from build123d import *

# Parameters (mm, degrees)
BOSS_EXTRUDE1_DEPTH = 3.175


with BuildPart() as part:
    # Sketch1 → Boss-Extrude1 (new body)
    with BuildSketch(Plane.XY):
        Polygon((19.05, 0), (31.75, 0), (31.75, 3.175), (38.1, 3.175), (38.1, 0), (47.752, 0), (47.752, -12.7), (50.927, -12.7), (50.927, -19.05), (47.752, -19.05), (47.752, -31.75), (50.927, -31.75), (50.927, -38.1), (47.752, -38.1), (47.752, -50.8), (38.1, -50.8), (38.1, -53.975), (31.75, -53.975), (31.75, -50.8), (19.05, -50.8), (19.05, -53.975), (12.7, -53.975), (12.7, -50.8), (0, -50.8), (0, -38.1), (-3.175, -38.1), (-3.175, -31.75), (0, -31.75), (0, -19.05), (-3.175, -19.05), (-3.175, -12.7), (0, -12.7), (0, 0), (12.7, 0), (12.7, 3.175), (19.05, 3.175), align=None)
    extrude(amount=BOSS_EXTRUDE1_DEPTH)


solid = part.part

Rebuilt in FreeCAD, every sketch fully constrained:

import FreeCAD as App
import Part
import Sketcher
Q = App.Units.Quantity

doc = App.newDocument("Part")
body = doc.addObject("PartDesign::Body", "Body")

# Sketch on XY plane
sketch1 = doc.addObject("Sketcher::SketchObject", "Sketch")
body.addObject(sketch1)
sketch1.AttachmentSupport = (doc.XY_Plane, [""])
sketch1.MapMode = "FlatFace"
sketch1.addGeometry(Part.LineSegment(App.Vector(31.8, 0, 0), App.Vector(19.1, 0, 0)), False)
sketch1.addGeometry(Part.LineSegment(App.Vector(19.1, 0, 0), App.Vector(19.1, 3.2, 0)), False)
sketch1.addGeometry(Part.LineSegment(App.Vector(19.1, 3.2, 0), App.Vector(12.7, 3.2, 0)), False)
sketch1.addGeometry(Part.LineSegment(App.Vector(12.7, 3.2, 0), App.Vector(12.7, 0, 0)), False)
sketch1.addGeometry(Part.LineSegment(App.Vector(12.7, 0, 0), App.Vector(0, 0, 0)), False)
sketch1.addGeometry(Part.LineSegment(App.Vector(0, 0, 0), App.Vector(0, -12.7, 0)), False)
sketch1.addGeometry(Part.LineSegment(App.Vector(0, -12.7, 0), App.Vector(-3.2, -12.7, 0)), False)
sketch1.addGeometry(Part.LineSegment(App.Vector(-3.2, -12.7, 0), App.Vector(-3.2, -19.1, 0)), False)
sketch1.addGeometry(Part.LineSegment(App.Vector(-3.2, -19.1, 0), App.Vector(0, -19.1, 0)), False)
sketch1.addGeometry(Part.LineSegment(App.Vector(0, -19.1, 0), App.Vector(0, -31.8, 0)), False)
sketch1.addGeometry(Part.LineSegment(App.Vector(0, -31.8, 0), App.Vector(-3.2, -31.8, 0)), False)
sketch1.addGeometry(Part.LineSegment(App.Vector(-3.2, -31.8, 0), App.Vector(-3.2, -38.1, 0)), False)
sketch1.addGeometry(Part.LineSegment(App.Vector(-3.2, -38.1, 0), App.Vector(0, -38.1, 0)), False)
sketch1.addGeometry(Part.LineSegment(App.Vector(0, -38.1, 0), App.Vector(0, -50.8, 0)), False)
sketch1.addGeometry(Part.LineSegment(App.Vector(0, -50.8, 0), App.Vector(12.7, -50.8, 0)), False)
sketch1.addGeometry(Part.LineSegment(App.Vector(12.7, -50.8, 0), App.Vector(12.7, -54, 0)), False)
sketch1.addGeometry(Part.LineSegment(App.Vector(12.7, -54, 0), App.Vector(19.1, -54, 0)), False)
sketch1.addGeometry(Part.LineSegment(App.Vector(19.1, -54, 0), App.Vector(19.1, -50.8, 0)), False)
sketch1.addGeometry(Part.LineSegment(App.Vector(19.1, -50.8, 0), App.Vector(31.8, -50.8, 0)), False)
sketch1.addGeometry(Part.LineSegment(App.Vector(31.8, -50.8, 0), App.Vector(31.8, -54, 0)), False)
sketch1.addGeometry(Part.LineSegment(App.Vector(31.8, -54, 0), App.Vector(38.1, -54, 0)), False)
sketch1.addGeometry(Part.LineSegment(App.Vector(38.1, -54, 0), App.Vector(38.1, -50.8, 0)), False)
sketch1.addGeometry(Part.LineSegment(App.Vector(38.1, -50.8, 0), App.Vector(47.8, -50.8, 0)), False)
sketch1.addGeometry(Part.LineSegment(App.Vector(47.8, -50.8, 0), App.Vector(47.8, -38.1, 0)), False)
sketch1.addGeometry(Part.LineSegment(App.Vector(47.8, -38.1, 0), App.Vector(50.9, -38.1, 0)), False)
sketch1.addGeometry(Part.LineSegment(App.Vector(50.9, -38.1, 0), App.Vector(50.9, -31.8, 0)), False)
sketch1.addGeometry(Part.LineSegment(App.Vector(50.9, -31.8, 0), App.Vector(47.8, -31.8, 0)), False)
sketch1.addGeometry(Part.LineSegment(App.Vector(47.8, -31.8, 0), App.Vector(47.8, -19.1, 0)), False)
sketch1.addGeometry(Part.LineSegment(App.Vector(47.8, -19.1, 0), App.Vector(50.9, -19.1, 0)), False)
sketch1.addGeometry(Part.LineSegment(App.Vector(50.9, -19.1, 0), App.Vector(50.9, -12.7, 0)), False)
sketch1.addGeometry(Part.LineSegment(App.Vector(50.9, -12.7, 0), App.Vector(47.8, -12.7, 0)), False)
sketch1.addGeometry(Part.LineSegment(App.Vector(47.8, -12.7, 0), App.Vector(47.8, 0, 0)), False)
sketch1.addGeometry(Part.LineSegment(App.Vector(47.8, 0, 0), App.Vector(38.1, 0, 0)), False)
sketch1.addGeometry(Part.LineSegment(App.Vector(38.1, 0, 0), App.Vector(38.1, 3.2, 0)), False)
sketch1.addGeometry(Part.LineSegment(App.Vector(38.1, 3.2, 0), App.Vector(31.8, 3.2, 0)), False)
sketch1.addGeometry(Part.LineSegment(App.Vector(31.8, 3.2, 0), App.Vector(31.8, 0, 0)), False)
sketch1.addConstraint(Sketcher.Constraint("Coincident", 0, 2, 1, 1))
sketch1.addConstraint(Sketcher.Constraint("Coincident", 1, 2, 2, 1))
sketch1.addConstraint(Sketcher.Constraint("Coincident", 2, 2, 3, 1))
sketch1.addConstraint(Sketcher.Constraint("Coincident", 3, 2, 4, 1))
sketch1.addConstraint(Sketcher.Constraint("Coincident", 4, 2, 5, 1))
sketch1.addConstraint(Sketcher.Constraint("Coincident", 5, 2, 6, 1))
sketch1.addConstraint(Sketcher.Constraint("Coincident", 6, 2, 7, 1))
sketch1.addConstraint(Sketcher.Constraint("Coincident", 7, 2, 8, 1))
sketch1.addConstraint(Sketcher.Constraint("Coincident", 8, 2, 9, 1))
sketch1.addConstraint(Sketcher.Constraint("Coincident", 9, 2, 10, 1))
sketch1.addConstraint(Sketcher.Constraint("Coincident", 10, 2, 11, 1))
sketch1.addConstraint(Sketcher.Constraint("Coincident", 11, 2, 12, 1))
sketch1.addConstraint(Sketcher.Constraint("Coincident", 12, 2, 13, 1))
sketch1.addConstraint(Sketcher.Constraint("Coincident", 13, 2, 14, 1))
sketch1.addConstraint(Sketcher.Constraint("Coincident", 14, 2, 15, 1))
sketch1.addConstraint(Sketcher.Constraint("Coincident", 15, 2, 16, 1))
sketch1.addConstraint(Sketcher.Constraint("Coincident", 16, 2, 17, 1))
sketch1.addConstraint(Sketcher.Constraint("Coincident", 17, 2, 18, 1))
sketch1.addConstraint(Sketcher.Constraint("Coincident", 18, 2, 19, 1))
sketch1.addConstraint(Sketcher.Constraint("Coincident", 19, 2, 20, 1))
sketch1.addConstraint(Sketcher.Constraint("Coincident", 20, 2, 21, 1))
sketch1.addConstraint(Sketcher.Constraint("Coincident", 21, 2, 22, 1))
sketch1.addConstraint(Sketcher.Constraint("Coincident", 22, 2, 23, 1))
sketch1.addConstraint(Sketcher.Constraint("Coincident", 23, 2, 24, 1))
sketch1.addConstraint(Sketcher.Constraint("Coincident", 24, 2, 25, 1))
sketch1.addConstraint(Sketcher.Constraint("Coincident", 25, 2, 26, 1))
sketch1.addConstraint(Sketcher.Constraint("Coincident", 26, 2, 27, 1))
sketch1.addConstraint(Sketcher.Constraint("Coincident", 27, 2, 28, 1))
sketch1.addConstraint(Sketcher.Constraint("Coincident", 28, 2, 29, 1))
sketch1.addConstraint(Sketcher.Constraint("Coincident", 29, 2, 30, 1))
sketch1.addConstraint(Sketcher.Constraint("Coincident", 30, 2, 31, 1))
sketch1.addConstraint(Sketcher.Constraint("Coincident", 31, 2, 32, 1))
sketch1.addConstraint(Sketcher.Constraint("Coincident", 32, 2, 33, 1))
sketch1.addConstraint(Sketcher.Constraint("Coincident", 33, 2, 34, 1))
sketch1.addConstraint(Sketcher.Constraint("Coincident", 34, 2, 35, 1))
sketch1.addConstraint(Sketcher.Constraint("Coincident", 35, 2, 0, 1))
sketch1.addConstraint(Sketcher.Constraint("Horizontal", 0))
sketch1.addConstraint(Sketcher.Constraint("Vertical", 1))
sketch1.addConstraint(Sketcher.Constraint("Horizontal", 2))
sketch1.addConstraint(Sketcher.Constraint("Vertical", 3))
sketch1.addConstraint(Sketcher.Constraint("Horizontal", 4))
sketch1.addConstraint(Sketcher.Constraint("Vertical", 5))
sketch1.addConstraint(Sketcher.Constraint("Horizontal", 6))
sketch1.addConstraint(Sketcher.Constraint("Vertical", 7))
sketch1.addConstraint(Sketcher.Constraint("Horizontal", 8))
sketch1.addConstraint(Sketcher.Constraint("Vertical", 9))
sketch1.addConstraint(Sketcher.Constraint("Horizontal", 10))
sketch1.addConstraint(Sketcher.Constraint("Vertical", 11))
sketch1.addConstraint(Sketcher.Constraint("Horizontal", 12))
sketch1.addConstraint(Sketcher.Constraint("Vertical", 13))
sketch1.addConstraint(Sketcher.Constraint("Horizontal", 14))
sketch1.addConstraint(Sketcher.Constraint("Vertical", 15))
sketch1.addConstraint(Sketcher.Constraint("Horizontal", 16))
sketch1.addConstraint(Sketcher.Constraint("Vertical", 17))
sketch1.addConstraint(Sketcher.Constraint("Horizontal", 18))
sketch1.addConstraint(Sketcher.Constraint("Vertical", 19))
sketch1.addConstraint(Sketcher.Constraint("Horizontal", 20))
sketch1.addConstraint(Sketcher.Constraint("Vertical", 21))
sketch1.addConstraint(Sketcher.Constraint("Horizontal", 22))
sketch1.addConstraint(Sketcher.Constraint("Vertical", 23))
sketch1.addConstraint(Sketcher.Constraint("Horizontal", 24))
sketch1.addConstraint(Sketcher.Constraint("Vertical", 25))
sketch1.addConstraint(Sketcher.Constraint("Horizontal", 26))
sketch1.addConstraint(Sketcher.Constraint("Vertical", 27))
sketch1.addConstraint(Sketcher.Constraint("Horizontal", 28))
sketch1.addConstraint(Sketcher.Constraint("Vertical", 29))
sketch1.addConstraint(Sketcher.Constraint("Horizontal", 30))
sketch1.addConstraint(Sketcher.Constraint("Vertical", 31))
sketch1.addConstraint(Sketcher.Constraint("Horizontal", 32))
sketch1.addConstraint(Sketcher.Constraint("Vertical", 33))
sketch1.addConstraint(Sketcher.Constraint("Horizontal", 34))
sketch1.addConstraint(Sketcher.Constraint("Vertical", 35))
sketch1.addConstraint(Sketcher.Constraint("Coincident", 4, 2, -1, 1))
sketch1.addConstraint(Sketcher.Constraint("PointOnObject", 0, 2, -1))
sketch1.addConstraint(Sketcher.Constraint("PointOnObject", 8, 2, -2))
sketch1.addConstraint(Sketcher.Constraint("PointOnObject", 12, 2, -2))
sketch1.addConstraint(Sketcher.Constraint("PointOnObject", 31, 2, -1))
sketch1.addConstraint(Sketcher.Constraint("Horizontal", 14, 2, 17, 2))
sketch1.addConstraint(Sketcher.Constraint("Horizontal", 16, 2, 19, 2))
sketch1.addConstraint(Sketcher.Constraint("Horizontal", 18, 2, 21, 2))
sketch1.addConstraint(Sketcher.Constraint("Horizontal", 12, 2, 23, 2))
sketch1.addConstraint(Sketcher.Constraint("Horizontal", 10, 2, 25, 2))
sketch1.addConstraint(Sketcher.Constraint("Horizontal", 8, 2, 27, 2))
sketch1.addConstraint(Sketcher.Constraint("Horizontal", 6, 2, 29, 2))
sketch1.addConstraint(Sketcher.Constraint("Horizontal", 2, 2, 33, 2))
sketch1.addConstraint(Sketcher.Constraint("Vertical", 7, 2, 10, 2))
sketch1.addConstraint(Sketcher.Constraint("Vertical", 3, 2, 14, 2))
sketch1.addConstraint(Sketcher.Constraint("Vertical", 1, 2, 16, 2))
sketch1.addConstraint(Sketcher.Constraint("Vertical", 23, 2, 26, 2))
sketch1.addConstraint(Sketcher.Constraint("Vertical", 25, 2, 28, 2))
sketch1.addConstraint(Sketcher.Constraint("Vertical", 27, 2, 30, 2))
sketch1.addConstraint(Sketcher.Constraint("Vertical", 21, 2, 32, 2))
sketch1.addConstraint(Sketcher.Constraint("Vertical", 19, 2, 34, 2))
sketch1.addConstraint(Sketcher.Constraint("Equal", 0, 4))
sketch1.addConstraint(Sketcher.Constraint("Equal", 16, 20))
sketch1.addConstraint(Sketcher.Constraint("Equal", 12, 24))
sketch1.addConstraint(Sketcher.Constraint("Equal", 30, 1))
sketch1.addConstraint(Sketcher.Constraint("Equal", 18, 5))
sketch1.addConstraint(Sketcher.Constraint("Equal", 34, 7))
sketch1.addConstraint(Sketcher.Constraint("Equal", 5, 9))
sketch1.addConstraint(Sketcher.Constraint("Equal", 7, 11))
sketch1.addConstraint(Sketcher.Constraint("Equal", 9, 13))
sketch1.addConstraint(Sketcher.Constraint("Equal", 3, 15))
sketch1.addConstraint(Sketcher.Constraint("DistanceX", 0, 2, 0, 1, Q("0.5 in")))
sketch1.addConstraint(Sketcher.Constraint("DistanceY", 13, 2, -1, 1, Q("2 in")))
sketch1.addConstraint(Sketcher.Constraint("DistanceX", 22, 1, 22, 2, Q("0.38 in")))
sketch1.addConstraint(Sketcher.Constraint("DistanceX", 6, 2, 6, 1, Q("0.125 in")))
pad1 = doc.addObject("PartDesign::Pad", "Pad")
body.addObject(pad1)
pad1.Profile = sketch1
pad1.Length = Q("0.125 in")

doc.recompute()
